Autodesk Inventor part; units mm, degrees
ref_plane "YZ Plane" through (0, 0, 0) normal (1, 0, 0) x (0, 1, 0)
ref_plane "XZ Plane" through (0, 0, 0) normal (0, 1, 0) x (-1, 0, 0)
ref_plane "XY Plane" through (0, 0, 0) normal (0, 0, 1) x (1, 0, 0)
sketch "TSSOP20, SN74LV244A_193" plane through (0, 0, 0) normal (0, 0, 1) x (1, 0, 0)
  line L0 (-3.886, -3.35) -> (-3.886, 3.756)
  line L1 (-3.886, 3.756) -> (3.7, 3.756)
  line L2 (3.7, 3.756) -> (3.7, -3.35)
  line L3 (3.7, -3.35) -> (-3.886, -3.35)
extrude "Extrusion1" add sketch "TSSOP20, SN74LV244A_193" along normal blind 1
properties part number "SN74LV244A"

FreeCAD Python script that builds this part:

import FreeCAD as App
import Part
import Sketcher
from FreeCAD import Vector


def add_polygon(sketch, points):
    """Adds a closed chain of lines whose ends are joined by coincident constraints."""
    first, n = sketch.GeometryCount, len(points)
    for a, b in zip(points, points[1:] + points[:1]):
        sketch.addGeometry(Part.LineSegment(App.Vector(*a, 0), App.Vector(*b, 0)), False)
    for i in range(n):
        sketch.addConstraint(Sketcher.Constraint("Coincident", first + i, 2, first + (i + 1) % n, 1))

doc = App.newDocument("Part")
params = doc.addObject("Spreadsheet::Sheet", "Params")
for row, (alias, value) in enumerate([
    ("pad1_length", "1 mm"),
], start=1):
    params.set(f"A{row}", alias)
    params.set(f"B{row}", "=" + value)
    params.setAlias(f"B{row}", alias)

body = doc.addObject("PartDesign::Body", "Body")

# Sketch on XY plane
sketch1 = body.newObject("Sketcher::SketchObject", "Sketch")
sketch1.AttachmentSupport = (doc.getObject("XY_Plane"), [""])
sketch1.MapMode = "FlatFace"
add_polygon(sketch1, [(-4, 4), (-4, -3), (4, -3), (4, 4)])  # lines 0-3
sketch1.addConstraint([
    Sketcher.Constraint("Vertical", 0),
    Sketcher.Constraint("Horizontal", 1),
    Sketcher.Constraint("Vertical", 2),
    Sketcher.Constraint("Horizontal", 3),
    Sketcher.Constraint("DistanceX", -1, 1, 1, 2, 3.7),
    Sketcher.Constraint("DistanceX", 1, 1, 1, 2, 7.586),
    Sketcher.Constraint("DistanceY", 0, 2, 0, 1, 7.106),
    Sketcher.Constraint("DistanceY", 0, 2, -1, 1, 3.35),
])
pad1 = body.newObject("PartDesign::Pad", "Pad")
pad1.Profile = sketch1
pad1.setExpression("Length", "Params.pad1_length")

doc.recompute()
